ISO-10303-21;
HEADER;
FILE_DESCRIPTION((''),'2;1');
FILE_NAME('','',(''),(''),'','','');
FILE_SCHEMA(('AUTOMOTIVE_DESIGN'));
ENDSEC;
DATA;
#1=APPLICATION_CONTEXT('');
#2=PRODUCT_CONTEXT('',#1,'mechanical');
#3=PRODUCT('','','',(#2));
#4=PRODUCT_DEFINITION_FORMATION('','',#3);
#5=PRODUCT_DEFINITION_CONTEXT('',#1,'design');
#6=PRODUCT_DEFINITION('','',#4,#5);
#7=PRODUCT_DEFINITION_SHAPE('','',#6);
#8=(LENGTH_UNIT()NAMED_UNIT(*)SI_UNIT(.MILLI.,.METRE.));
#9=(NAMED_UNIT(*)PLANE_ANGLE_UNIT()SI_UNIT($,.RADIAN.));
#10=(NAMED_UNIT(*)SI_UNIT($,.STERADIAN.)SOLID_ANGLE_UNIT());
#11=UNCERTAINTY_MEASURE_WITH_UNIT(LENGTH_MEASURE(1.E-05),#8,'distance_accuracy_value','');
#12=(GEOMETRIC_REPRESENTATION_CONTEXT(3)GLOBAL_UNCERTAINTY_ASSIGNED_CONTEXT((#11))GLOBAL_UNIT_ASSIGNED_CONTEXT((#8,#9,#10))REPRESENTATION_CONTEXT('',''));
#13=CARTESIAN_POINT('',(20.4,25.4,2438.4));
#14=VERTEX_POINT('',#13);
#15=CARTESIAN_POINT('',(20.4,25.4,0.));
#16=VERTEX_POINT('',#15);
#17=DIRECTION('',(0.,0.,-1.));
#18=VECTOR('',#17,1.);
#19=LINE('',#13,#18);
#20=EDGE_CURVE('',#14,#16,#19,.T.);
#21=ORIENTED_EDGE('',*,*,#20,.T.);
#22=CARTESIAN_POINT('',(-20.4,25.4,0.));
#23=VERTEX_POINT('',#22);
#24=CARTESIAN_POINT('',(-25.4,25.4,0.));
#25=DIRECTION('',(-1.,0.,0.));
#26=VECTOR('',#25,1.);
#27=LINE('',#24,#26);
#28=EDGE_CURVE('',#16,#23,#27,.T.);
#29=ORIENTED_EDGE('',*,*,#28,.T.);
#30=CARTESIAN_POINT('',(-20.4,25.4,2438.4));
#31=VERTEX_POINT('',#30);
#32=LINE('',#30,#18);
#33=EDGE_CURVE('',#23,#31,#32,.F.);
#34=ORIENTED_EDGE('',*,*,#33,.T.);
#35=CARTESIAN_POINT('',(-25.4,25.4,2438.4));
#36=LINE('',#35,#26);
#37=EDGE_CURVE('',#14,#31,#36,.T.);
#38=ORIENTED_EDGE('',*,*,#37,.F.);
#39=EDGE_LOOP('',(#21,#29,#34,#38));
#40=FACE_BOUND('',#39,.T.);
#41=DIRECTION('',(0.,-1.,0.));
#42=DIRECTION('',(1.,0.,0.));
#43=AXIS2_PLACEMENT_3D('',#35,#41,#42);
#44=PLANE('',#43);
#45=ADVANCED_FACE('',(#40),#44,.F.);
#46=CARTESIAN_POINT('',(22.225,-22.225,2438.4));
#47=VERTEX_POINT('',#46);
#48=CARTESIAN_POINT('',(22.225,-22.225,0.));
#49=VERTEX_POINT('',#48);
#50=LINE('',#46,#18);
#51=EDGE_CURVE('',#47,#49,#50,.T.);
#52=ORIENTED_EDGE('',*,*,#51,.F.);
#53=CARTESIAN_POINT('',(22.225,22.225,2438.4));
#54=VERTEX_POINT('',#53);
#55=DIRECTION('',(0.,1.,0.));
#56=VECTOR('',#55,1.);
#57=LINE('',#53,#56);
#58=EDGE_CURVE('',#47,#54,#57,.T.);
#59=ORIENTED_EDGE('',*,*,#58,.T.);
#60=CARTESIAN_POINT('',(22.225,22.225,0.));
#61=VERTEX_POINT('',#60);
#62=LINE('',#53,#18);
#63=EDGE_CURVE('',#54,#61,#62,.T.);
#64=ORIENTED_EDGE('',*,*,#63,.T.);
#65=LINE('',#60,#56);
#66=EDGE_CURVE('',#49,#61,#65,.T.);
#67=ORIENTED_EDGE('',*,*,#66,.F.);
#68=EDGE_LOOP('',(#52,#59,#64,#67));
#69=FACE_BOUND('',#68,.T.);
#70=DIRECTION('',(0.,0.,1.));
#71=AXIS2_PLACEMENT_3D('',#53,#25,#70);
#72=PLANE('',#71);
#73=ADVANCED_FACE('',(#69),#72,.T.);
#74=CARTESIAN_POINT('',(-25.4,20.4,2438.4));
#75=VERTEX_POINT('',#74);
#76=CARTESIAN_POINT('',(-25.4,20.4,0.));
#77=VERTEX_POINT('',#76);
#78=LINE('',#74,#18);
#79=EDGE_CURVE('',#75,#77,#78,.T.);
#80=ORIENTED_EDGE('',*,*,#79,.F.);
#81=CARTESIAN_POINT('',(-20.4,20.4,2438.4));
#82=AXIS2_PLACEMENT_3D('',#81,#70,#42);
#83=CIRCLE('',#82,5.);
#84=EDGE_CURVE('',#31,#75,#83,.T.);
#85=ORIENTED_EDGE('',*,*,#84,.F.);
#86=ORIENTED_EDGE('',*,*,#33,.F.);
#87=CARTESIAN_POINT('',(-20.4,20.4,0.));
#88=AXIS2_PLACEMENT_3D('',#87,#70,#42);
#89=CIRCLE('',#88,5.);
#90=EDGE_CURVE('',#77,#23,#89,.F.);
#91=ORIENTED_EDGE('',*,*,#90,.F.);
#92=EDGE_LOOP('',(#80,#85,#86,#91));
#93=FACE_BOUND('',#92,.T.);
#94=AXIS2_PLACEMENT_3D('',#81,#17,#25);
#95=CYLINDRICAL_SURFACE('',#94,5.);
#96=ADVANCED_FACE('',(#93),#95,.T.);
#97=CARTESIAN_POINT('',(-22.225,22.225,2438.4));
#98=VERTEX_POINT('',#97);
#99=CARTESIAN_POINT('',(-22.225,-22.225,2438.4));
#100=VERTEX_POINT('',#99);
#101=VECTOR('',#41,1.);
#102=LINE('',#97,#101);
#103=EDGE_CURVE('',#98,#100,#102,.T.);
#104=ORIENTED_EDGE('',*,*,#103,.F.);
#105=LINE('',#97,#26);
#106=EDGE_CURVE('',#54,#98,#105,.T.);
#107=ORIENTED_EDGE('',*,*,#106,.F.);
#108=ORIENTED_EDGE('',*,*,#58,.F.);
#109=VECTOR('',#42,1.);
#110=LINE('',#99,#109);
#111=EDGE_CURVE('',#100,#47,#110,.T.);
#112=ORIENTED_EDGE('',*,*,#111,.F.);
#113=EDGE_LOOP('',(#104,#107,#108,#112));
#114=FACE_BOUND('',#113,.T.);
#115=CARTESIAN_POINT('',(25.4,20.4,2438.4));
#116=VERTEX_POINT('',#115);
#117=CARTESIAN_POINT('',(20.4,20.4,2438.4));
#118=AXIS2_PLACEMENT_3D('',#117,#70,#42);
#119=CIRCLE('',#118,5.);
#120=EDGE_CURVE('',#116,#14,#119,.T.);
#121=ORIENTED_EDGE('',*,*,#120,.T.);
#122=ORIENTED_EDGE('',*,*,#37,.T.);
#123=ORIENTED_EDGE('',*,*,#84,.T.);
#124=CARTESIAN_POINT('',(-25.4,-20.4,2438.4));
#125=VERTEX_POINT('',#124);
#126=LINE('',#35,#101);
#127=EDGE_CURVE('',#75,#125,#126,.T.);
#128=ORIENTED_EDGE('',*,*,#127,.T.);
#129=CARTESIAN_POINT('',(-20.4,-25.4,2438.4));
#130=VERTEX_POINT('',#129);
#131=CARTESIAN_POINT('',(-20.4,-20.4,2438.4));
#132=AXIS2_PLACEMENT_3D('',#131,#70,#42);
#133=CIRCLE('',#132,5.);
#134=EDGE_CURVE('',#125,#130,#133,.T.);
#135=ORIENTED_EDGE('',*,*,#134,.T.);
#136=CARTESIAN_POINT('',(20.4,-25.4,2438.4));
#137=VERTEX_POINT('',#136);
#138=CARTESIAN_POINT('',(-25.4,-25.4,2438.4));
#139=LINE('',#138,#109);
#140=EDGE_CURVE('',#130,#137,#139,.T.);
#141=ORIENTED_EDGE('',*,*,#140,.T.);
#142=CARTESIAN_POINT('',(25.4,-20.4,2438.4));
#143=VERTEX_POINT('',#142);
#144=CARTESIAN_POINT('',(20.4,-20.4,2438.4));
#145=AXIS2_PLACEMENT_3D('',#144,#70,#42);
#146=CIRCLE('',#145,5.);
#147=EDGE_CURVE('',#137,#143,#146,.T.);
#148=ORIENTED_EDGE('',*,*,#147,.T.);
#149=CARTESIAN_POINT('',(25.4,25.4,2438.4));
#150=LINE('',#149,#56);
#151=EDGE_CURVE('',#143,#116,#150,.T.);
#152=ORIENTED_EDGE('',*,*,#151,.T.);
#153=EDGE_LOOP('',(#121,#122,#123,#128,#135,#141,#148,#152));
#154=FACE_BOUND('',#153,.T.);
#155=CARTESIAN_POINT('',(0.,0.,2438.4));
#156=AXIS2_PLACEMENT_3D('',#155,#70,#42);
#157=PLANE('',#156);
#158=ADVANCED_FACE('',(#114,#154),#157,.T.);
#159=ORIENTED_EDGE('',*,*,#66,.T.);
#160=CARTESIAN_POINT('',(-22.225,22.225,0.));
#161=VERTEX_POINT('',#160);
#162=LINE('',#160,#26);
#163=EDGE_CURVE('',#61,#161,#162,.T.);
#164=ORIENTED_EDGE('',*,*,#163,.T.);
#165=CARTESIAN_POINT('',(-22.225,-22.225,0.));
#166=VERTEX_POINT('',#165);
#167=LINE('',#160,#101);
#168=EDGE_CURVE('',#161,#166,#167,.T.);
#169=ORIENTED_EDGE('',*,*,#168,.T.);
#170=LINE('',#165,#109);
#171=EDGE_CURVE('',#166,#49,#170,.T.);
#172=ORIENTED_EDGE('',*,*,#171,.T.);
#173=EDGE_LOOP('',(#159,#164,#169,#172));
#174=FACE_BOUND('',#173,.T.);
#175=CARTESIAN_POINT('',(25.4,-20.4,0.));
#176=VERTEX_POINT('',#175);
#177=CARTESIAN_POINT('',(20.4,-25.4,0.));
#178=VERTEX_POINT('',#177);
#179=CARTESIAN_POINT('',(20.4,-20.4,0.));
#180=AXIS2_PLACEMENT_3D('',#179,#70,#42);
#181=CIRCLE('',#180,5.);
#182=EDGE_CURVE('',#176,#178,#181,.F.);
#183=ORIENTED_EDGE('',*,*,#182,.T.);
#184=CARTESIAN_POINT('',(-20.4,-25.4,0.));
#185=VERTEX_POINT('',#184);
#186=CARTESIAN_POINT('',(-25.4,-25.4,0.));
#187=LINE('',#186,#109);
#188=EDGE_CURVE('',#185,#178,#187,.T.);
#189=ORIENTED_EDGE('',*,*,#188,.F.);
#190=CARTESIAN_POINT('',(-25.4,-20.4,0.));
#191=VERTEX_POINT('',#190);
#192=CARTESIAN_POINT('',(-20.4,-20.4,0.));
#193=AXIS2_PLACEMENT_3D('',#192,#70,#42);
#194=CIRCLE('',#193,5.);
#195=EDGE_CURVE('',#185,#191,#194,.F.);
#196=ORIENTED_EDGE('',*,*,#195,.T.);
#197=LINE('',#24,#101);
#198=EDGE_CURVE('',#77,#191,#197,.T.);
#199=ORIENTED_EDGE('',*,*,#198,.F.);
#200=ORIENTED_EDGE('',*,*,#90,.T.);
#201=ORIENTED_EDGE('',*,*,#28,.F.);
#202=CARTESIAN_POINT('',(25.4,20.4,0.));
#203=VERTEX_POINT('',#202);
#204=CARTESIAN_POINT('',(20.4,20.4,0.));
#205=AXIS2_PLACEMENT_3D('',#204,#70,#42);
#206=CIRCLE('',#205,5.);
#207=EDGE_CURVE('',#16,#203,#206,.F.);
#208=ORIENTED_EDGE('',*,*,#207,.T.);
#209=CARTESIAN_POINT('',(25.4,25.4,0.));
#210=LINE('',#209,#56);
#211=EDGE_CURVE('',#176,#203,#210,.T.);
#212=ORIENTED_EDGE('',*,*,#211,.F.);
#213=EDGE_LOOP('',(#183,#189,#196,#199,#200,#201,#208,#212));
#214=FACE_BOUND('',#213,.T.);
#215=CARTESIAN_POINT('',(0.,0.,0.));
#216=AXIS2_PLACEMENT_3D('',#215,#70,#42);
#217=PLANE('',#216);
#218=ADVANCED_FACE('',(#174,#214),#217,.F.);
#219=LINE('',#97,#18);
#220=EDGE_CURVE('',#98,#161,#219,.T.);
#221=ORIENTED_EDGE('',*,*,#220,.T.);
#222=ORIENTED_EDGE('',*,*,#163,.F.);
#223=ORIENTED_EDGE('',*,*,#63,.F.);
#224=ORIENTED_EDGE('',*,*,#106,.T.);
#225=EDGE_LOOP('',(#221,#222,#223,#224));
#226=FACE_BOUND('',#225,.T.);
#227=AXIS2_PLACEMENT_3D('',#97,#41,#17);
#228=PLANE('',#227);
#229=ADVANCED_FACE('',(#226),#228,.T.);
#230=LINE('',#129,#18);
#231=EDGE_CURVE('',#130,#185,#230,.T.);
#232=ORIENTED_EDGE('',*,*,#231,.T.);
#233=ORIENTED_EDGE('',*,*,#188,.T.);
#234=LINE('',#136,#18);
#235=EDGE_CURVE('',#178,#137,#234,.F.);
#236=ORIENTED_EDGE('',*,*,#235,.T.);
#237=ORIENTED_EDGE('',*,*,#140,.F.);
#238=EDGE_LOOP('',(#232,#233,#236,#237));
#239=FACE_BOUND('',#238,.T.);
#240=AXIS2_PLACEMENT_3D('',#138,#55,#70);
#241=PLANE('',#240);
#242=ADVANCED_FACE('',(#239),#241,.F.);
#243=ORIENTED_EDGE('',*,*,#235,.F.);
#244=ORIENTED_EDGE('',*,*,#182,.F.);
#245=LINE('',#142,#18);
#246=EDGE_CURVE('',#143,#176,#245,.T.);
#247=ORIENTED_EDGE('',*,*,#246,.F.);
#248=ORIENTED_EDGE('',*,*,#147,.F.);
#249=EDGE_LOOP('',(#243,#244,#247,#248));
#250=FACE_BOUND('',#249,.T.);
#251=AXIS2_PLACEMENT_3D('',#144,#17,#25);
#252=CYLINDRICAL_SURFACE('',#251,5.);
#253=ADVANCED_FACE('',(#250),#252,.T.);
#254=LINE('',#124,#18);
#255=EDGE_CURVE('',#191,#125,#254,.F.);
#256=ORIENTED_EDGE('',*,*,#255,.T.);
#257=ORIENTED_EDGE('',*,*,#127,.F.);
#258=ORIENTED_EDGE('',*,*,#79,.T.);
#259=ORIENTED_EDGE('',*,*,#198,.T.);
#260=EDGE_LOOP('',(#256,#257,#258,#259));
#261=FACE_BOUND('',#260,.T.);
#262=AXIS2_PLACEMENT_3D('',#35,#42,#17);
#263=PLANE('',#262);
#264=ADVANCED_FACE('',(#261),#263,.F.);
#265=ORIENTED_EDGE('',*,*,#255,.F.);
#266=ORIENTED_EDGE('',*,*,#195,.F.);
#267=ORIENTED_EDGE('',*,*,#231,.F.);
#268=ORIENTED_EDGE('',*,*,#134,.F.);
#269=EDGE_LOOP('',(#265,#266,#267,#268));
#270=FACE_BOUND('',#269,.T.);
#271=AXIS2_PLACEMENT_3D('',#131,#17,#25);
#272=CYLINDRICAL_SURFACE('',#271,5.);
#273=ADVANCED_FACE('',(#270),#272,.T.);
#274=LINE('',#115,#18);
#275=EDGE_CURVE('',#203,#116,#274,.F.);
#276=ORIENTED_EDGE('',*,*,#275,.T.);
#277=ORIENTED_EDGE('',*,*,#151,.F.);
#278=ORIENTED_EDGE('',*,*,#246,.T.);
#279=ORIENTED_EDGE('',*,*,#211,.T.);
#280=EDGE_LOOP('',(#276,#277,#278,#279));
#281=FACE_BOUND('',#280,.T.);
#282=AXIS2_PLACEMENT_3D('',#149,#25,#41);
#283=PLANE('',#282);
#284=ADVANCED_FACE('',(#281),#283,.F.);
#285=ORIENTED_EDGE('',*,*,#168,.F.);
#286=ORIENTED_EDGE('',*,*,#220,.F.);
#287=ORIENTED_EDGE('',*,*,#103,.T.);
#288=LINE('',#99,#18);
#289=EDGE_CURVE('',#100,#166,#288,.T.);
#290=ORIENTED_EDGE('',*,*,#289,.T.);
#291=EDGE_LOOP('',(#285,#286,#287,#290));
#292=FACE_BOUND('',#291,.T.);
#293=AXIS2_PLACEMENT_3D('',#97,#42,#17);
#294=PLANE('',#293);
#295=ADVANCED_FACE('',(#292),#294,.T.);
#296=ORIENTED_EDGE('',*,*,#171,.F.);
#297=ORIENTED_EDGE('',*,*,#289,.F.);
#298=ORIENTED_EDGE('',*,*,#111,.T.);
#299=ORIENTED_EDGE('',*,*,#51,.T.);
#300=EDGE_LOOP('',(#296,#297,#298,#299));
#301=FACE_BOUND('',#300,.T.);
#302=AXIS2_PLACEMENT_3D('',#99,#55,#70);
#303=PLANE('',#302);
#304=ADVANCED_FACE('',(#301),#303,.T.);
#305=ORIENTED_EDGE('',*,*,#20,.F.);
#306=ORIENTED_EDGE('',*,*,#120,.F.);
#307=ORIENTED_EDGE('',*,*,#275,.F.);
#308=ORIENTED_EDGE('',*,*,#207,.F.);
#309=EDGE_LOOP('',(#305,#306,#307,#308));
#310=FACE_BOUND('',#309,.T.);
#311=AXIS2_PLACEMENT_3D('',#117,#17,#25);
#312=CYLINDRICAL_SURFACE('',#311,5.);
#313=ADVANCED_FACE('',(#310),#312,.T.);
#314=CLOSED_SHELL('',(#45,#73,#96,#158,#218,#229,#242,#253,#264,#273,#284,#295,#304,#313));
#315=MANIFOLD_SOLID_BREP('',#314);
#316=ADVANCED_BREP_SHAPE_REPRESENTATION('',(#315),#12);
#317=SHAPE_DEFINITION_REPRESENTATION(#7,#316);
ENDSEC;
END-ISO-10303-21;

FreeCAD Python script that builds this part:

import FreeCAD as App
import Part
import Sketcher

V = App.Vector
Q = App.Units.Quantity


def edges_at(feature, points):
    """Names of the edges that pass closest to the given points."""
    edges = feature.Shape.Edges
    near = lambda p: min(range(len(edges)), key=lambda i: edges[i].distToShape(Part.Vertex(*p))[0])
    return sorted({f"Edge{near(p) + 1}" for p in points})


def add_polygon(sketch, points):
    """Adds a closed chain of lines whose ends are joined by coincident constraints."""
    first, n = sketch.GeometryCount, len(points)
    for a, b in zip(points, points[1:] + points[:1]):
        sketch.addGeometry(Part.LineSegment(App.Vector(*a, 0), App.Vector(*b, 0)), False)
    for i in range(n):
        sketch.addConstraint(Sketcher.Constraint("Coincident", first + i, 2, first + (i + 1) % n, 1))

doc = App.newDocument("Part")
body = doc.addObject("PartDesign::Body", "Body")

sketch1 = body.newObject("Sketcher::SketchObject", "Sketch")
sketch1.AttachmentSupport = (doc.getObject("XY_Plane"), [""])
sketch1.MapMode = "FlatFace"
add_polygon(sketch1, [(-25, 25), (-25, -25), (25, -25), (25, 25)])
add_polygon(sketch1, [(22, -22), (-22, -22), (-22, 22), (22, 22)])
sketch1.addConstraint(Sketcher.Constraint("Vertical", 0))
sketch1.addConstraint(Sketcher.Constraint("Horizontal", 1))
sketch1.addConstraint(Sketcher.Constraint("Vertical", 2))
sketch1.addConstraint(Sketcher.Constraint("Horizontal", 3))
sketch1.addConstraint(Sketcher.Constraint("Horizontal", 4))
sketch1.addConstraint(Sketcher.Constraint("Vertical", 5))
sketch1.addConstraint(Sketcher.Constraint("Horizontal", 6))
sketch1.addConstraint(Sketcher.Constraint("Vertical", 7))
sketch1.addConstraint(Sketcher.Constraint("Symmetric", 0, 2, 2, 2, -1, 1))
sketch1.addConstraint(Sketcher.Constraint("Symmetric", 4, 2, 6, 2, -1, 1))
sketch1.addConstraint(Sketcher.Constraint("Equal", 3, 0))
sketch1.addConstraint(Sketcher.Constraint("Equal", 6, 5))
sketch1.addConstraint(Sketcher.Constraint("DistanceX", 1, 1, 1, 2, Q("2 in")))
sketch1.addConstraint(Sketcher.Constraint("DistanceX", 4, 2, 4, 1, Q("1.75 in")))
pad1 = body.newObject("PartDesign::Pad", "Pad")
pad1.Profile = sketch1
pad1.Length = Q("96 in")
doc.recompute()

fillet = body.newObject("PartDesign::Fillet", "Fillet")
fillet.Base = (pad1, edges_at(pad1, [
    (25.4, -25.4, 1219.2),
    (-25.4, -25.4, 1219.2),
    (-25.4, 25.4, 1219.2),
    (25.4, 25.4, 1219.2),
]))
fillet.Radius = 5

doc.recompute()
